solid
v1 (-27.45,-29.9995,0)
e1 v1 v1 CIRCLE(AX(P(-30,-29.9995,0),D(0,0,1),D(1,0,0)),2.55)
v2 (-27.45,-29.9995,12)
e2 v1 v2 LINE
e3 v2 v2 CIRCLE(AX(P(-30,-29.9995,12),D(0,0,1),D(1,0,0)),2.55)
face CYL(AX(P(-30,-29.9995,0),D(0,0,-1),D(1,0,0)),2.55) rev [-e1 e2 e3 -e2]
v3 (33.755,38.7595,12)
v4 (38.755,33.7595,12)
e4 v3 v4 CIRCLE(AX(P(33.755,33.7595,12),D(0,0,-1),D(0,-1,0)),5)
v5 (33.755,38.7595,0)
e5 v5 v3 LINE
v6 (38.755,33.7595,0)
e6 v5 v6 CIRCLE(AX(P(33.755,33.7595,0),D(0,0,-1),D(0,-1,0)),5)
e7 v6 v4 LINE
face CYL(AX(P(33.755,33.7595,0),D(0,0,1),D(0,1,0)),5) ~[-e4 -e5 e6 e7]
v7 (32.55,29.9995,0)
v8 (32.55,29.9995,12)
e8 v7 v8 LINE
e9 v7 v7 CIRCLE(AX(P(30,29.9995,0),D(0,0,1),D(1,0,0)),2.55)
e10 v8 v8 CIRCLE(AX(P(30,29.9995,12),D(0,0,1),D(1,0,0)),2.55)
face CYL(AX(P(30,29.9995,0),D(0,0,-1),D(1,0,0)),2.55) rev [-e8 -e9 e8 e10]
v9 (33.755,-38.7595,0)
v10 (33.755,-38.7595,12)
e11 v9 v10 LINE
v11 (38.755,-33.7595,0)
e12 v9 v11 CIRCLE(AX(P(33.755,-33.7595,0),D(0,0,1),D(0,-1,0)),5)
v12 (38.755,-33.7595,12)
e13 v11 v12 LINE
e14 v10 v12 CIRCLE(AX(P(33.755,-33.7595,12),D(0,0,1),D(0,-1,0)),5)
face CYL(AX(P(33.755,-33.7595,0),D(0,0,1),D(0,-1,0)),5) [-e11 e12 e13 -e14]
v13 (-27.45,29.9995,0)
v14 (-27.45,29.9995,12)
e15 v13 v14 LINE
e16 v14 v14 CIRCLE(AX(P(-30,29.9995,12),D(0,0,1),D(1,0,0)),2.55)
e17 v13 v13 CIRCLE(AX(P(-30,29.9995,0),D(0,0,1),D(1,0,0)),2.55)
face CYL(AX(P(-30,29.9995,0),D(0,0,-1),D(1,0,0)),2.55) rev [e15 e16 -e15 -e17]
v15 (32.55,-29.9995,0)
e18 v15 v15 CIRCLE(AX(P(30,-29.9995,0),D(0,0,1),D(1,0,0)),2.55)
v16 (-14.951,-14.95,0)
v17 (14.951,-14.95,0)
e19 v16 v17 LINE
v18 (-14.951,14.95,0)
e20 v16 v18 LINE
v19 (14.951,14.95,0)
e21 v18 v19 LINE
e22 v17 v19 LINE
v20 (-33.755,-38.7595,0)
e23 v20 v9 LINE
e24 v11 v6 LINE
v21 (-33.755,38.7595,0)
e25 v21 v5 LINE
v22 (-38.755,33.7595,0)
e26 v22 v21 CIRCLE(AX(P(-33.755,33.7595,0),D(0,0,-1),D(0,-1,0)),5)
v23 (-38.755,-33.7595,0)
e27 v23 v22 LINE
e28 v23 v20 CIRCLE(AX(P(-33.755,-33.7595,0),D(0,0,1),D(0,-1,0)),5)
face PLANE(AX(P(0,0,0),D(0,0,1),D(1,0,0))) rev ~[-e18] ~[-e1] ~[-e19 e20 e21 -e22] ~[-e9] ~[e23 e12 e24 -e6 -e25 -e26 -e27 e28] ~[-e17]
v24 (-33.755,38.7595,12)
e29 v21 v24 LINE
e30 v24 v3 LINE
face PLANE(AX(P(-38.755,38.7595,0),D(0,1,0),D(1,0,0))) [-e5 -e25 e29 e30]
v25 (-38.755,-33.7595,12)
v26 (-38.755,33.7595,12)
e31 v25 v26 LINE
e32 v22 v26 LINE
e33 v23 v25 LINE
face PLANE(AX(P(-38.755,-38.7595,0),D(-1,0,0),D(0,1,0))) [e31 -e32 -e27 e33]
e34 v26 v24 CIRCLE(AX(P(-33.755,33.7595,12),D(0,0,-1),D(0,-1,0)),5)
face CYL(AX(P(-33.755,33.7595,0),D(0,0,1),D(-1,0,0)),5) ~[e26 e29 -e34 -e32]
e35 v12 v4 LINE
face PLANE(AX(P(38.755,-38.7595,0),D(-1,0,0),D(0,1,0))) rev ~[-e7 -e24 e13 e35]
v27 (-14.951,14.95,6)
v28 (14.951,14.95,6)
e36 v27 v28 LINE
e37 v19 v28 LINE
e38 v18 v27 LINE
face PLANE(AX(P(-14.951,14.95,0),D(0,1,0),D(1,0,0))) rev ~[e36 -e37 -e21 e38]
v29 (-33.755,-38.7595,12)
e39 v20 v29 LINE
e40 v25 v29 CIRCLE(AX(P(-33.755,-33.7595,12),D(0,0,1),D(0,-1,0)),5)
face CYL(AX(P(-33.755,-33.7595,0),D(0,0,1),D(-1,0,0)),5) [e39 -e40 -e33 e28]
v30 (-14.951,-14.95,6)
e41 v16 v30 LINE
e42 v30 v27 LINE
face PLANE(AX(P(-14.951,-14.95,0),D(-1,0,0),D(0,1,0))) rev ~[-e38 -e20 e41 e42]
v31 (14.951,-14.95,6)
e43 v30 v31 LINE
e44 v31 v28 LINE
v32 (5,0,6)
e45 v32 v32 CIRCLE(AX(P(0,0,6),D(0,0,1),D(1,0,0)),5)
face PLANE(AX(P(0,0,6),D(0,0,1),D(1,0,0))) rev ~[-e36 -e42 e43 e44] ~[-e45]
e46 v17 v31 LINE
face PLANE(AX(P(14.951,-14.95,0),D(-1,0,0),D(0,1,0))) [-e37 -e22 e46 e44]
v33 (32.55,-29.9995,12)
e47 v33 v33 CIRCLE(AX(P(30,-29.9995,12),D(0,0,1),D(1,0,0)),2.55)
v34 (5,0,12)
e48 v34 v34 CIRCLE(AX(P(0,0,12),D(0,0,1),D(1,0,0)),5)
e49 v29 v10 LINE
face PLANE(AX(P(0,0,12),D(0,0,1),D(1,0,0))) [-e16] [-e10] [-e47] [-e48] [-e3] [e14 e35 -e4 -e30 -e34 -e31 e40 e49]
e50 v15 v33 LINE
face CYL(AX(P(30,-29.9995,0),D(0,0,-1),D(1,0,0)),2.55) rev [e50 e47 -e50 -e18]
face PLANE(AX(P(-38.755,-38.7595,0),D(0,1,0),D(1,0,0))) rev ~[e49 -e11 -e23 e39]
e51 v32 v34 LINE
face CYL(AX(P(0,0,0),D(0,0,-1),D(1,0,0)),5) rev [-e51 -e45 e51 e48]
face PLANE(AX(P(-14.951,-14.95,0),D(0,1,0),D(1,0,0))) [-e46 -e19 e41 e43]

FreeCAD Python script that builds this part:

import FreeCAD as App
import Part
import Sketcher
from FreeCAD import Vector
Q = App.Units.Quantity


def edges_at(feature, points):
    """Names of the edges that pass closest to the given points."""
    edges = feature.Shape.Edges
    near = lambda p: min(range(len(edges)), key=lambda i: edges[i].distToShape(Part.Vertex(*p))[0])
    return sorted({f"Edge{near(p) + 1}" for p in points})

doc = App.newDocument("Part")
body = doc.addObject("PartDesign::Body", "Body")

sketch1 = body.newObject("Sketcher::SketchObject", "Sketch")
sketch1.AttachmentSupport = (doc.getObject("XY_Plane"), [""])
sketch1.MapMode = "FlatFace"
sketch1.addGeometry(Part.LineSegment(Vector(-38.755, 38.7595, 0), Vector(-38.755, -38.7595, 0)), False)
sketch1.addGeometry(Part.LineSegment(Vector(-38.755, -38.7595, 0), Vector(38.755, -38.7595, 0)), False)
sketch1.addGeometry(Part.LineSegment(Vector(38.755, -38.7595, 0), Vector(38.755, 38.7595, 0)), False)
sketch1.addGeometry(Part.LineSegment(Vector(38.755, 38.7595, 0), Vector(-38.755, 38.7595, 0)), False)
sketch1.addGeometry(Part.Circle(Vector(-30, -29.9995, 0), Vector(0, 0, 1), 2.55), False)
sketch1.addGeometry(Part.Circle(Vector(30, -29.9995, 0), Vector(0, 0, 1), 2.55), False)
sketch1.addGeometry(Part.Circle(Vector(-30, 29.9995, 0), Vector(0, 0, 1), 2.55), False)
sketch1.addGeometry(Part.Circle(Vector(0, 0, 0), Vector(0, 0, 1), 5), False)
sketch1.addGeometry(Part.Circle(Vector(30, 29.9995, 0), Vector(0, 0, 1), 2.55), False)
sketch1.addConstraint(Sketcher.Constraint("Coincident", 0, 2, 1, 1))
sketch1.addConstraint(Sketcher.Constraint("Coincident", 1, 2, 2, 1))
sketch1.addConstraint(Sketcher.Constraint("Coincident", 2, 2, 3, 1))
sketch1.addConstraint(Sketcher.Constraint("Coincident", 3, 2, 0, 1))
sketch1.addConstraint(Sketcher.Constraint("Vertical", 0))
sketch1.addConstraint(Sketcher.Constraint("Horizontal", 1))
sketch1.addConstraint(Sketcher.Constraint("Vertical", 2))
sketch1.addConstraint(Sketcher.Constraint("Horizontal", 3))
sketch1.addConstraint(Sketcher.Constraint("Coincident", 7, 3, -1, 1))
sketch1.addConstraint(Sketcher.Constraint("Equal", 4, 5))
sketch1.addConstraint(Sketcher.Constraint("Equal", 5, 6))
sketch1.addConstraint(Sketcher.Constraint("Equal", 6, 8))
sketch1.addConstraint(Sketcher.Constraint("Symmetric", 5, 3, 6, 3, -1, 1))
sketch1.addConstraint(Sketcher.Constraint("Symmetric", 4, 3, 8, 3, -1, 1))
sketch1.addConstraint(Sketcher.Constraint("Symmetric", 0, 2, 2, 2, -1, 1))
sketch1.addConstraint(Sketcher.Constraint("Symmetric", 4, 3, 5, 3, -2))
sketch1.addConstraint(Sketcher.Constraint("Diameter", 7, Q("10 mm")))
sketch1.addConstraint(Sketcher.Constraint("Diameter", 4, Q("5.1 mm")))
sketch1.addConstraint(Sketcher.Constraint("DistanceX", 4, 3, -1, 1, Q("30 mm")))
sketch1.addConstraint(Sketcher.Constraint("DistanceX", 1, 1, 1, 2, Q("77.51 mm")))
sketch1.addConstraint(Sketcher.Constraint("DistanceY", 0, 2, 0, 1, Q("77.519 mm")))
sketch1.addConstraint(Sketcher.Constraint("DistanceY", 0, 2, 4, 3, Q("8.76 mm")))
pad1 = body.newObject("PartDesign::Pad", "Pad")
pad1.Profile = sketch1
pad1.Length = 12

sketch2 = body.newObject("Sketcher::SketchObject", "Sketch001")
sketch2.AttachmentSupport = (doc.getObject("XY_Plane"), [""])
sketch2.MapMode = "FlatFace"
sketch2.addGeometry(Part.LineSegment(Vector(-14.951, 14.95, 0), Vector(-14.951, -14.95, 0)), False)
sketch2.addGeometry(Part.LineSegment(Vector(-14.951, -14.95, 0), Vector(14.951, -14.95, 0)), False)
sketch2.addGeometry(Part.LineSegment(Vector(14.951, -14.95, 0), Vector(14.951, 14.95, 0)), False)
sketch2.addGeometry(Part.LineSegment(Vector(14.951, 14.95, 0), Vector(-14.951, 14.95, 0)), False)
sketch2.addGeometry(Part.Circle(Vector(0, 0, 0), Vector(0, 0, 1), 5), False)
sketch2.addConstraint(Sketcher.Constraint("Coincident", 0, 2, 1, 1))
sketch2.addConstraint(Sketcher.Constraint("Coincident", 1, 2, 2, 1))
sketch2.addConstraint(Sketcher.Constraint("Coincident", 2, 2, 3, 1))
sketch2.addConstraint(Sketcher.Constraint("Coincident", 3, 2, 0, 1))
sketch2.addConstraint(Sketcher.Constraint("Vertical", 0))
sketch2.addConstraint(Sketcher.Constraint("Horizontal", 1))
sketch2.addConstraint(Sketcher.Constraint("Vertical", 2))
sketch2.addConstraint(Sketcher.Constraint("Horizontal", 3))
sketch2.addConstraint(Sketcher.Constraint("Coincident", 4, 3, -1, 1))
sketch2.addConstraint(Sketcher.Constraint("Symmetric", 0, 2, 2, 2, -1, 1))
sketch2.addConstraint(Sketcher.Constraint("Diameter", 4, Q("10 mm")))
sketch2.addConstraint(Sketcher.Constraint("DistanceY", 0, 2, 0, 1, Q("29.9 mm")))
sketch2.addConstraint(Sketcher.Constraint("DistanceX", 1, 1, 1, 2, Q("29.902 mm")))
pocket1 = body.newObject("PartDesign::Pocket", "Pocket")
pocket1.Profile = sketch2
pocket1.Length = 6
pocket1.Reversed = True
doc.recompute()

fillet = body.newObject("PartDesign::Fillet", "Fillet")
fillet.Base = (pocket1, edges_at(pocket1, [
    (38.755, -38.76, 6),
    (-38.755, -38.76, 6),
    (38.755, 38.76, 6),
    (-38.755, 38.76, 6),
]))
fillet.Radius = 5

doc.recompute()
